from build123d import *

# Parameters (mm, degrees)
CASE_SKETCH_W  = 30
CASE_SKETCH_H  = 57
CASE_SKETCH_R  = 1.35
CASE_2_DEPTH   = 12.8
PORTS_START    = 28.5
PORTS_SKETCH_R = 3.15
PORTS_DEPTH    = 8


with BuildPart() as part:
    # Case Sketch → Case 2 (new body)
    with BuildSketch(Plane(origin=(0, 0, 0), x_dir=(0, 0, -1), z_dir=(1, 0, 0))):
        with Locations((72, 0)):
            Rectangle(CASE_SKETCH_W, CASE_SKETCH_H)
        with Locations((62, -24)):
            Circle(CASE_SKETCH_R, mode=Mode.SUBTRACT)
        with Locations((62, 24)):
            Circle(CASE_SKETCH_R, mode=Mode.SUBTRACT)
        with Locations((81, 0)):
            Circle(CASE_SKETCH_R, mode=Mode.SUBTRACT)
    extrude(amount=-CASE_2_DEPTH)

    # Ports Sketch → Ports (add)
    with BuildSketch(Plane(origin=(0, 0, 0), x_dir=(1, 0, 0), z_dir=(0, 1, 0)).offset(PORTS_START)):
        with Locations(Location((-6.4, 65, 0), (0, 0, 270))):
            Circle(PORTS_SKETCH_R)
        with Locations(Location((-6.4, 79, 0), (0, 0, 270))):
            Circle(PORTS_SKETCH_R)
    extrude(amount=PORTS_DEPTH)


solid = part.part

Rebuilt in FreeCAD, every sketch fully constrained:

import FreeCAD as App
import Part
import Sketcher

V = App.Vector
Q = App.Units.Quantity


def add_polygon(sketch, points):
    """Adds a closed chain of lines whose ends are joined by coincident constraints."""
    first, n = sketch.GeometryCount, len(points)
    for a, b in zip(points, points[1:] + points[:1]):
        sketch.addGeometry(Part.LineSegment(App.Vector(*a, 0), App.Vector(*b, 0)), False)
    for i in range(n):
        sketch.addConstraint(Sketcher.Constraint("Coincident", first + i, 2, first + (i + 1) % n, 1))

doc = App.newDocument("Part")
body = doc.addObject("PartDesign::Body", "Body")

# Sketch on YZ plane
sketch1 = body.newObject("Sketcher::SketchObject", "Sketch")
sketch1.AttachmentSupport = (doc.getObject("YZ_Plane"), [""])
sketch1.MapMode = "FlatFace"
add_polygon(sketch1, [(28.5, -57), (-28.5, -57), (-28.5, -87), (28.5, -87)])  # lines 0-3
sketch1.addGeometry(Part.Circle(V(-24, -62, 0), V(0, 0, 1), 1.4), False)  # 4
sketch1.addGeometry(Part.Circle(V(24, -62, 0), V(0, 0, 1), 1.4), False)  # 5
sketch1.addGeometry(Part.Circle(V(0, -81, 0), V(0, 0, 1), 1.4), False)  # 6
sketch1.addConstraint([
    Sketcher.Constraint("Horizontal", 0),
    Sketcher.Constraint("Vertical", 1),
    Sketcher.Constraint("Horizontal", 2),
    Sketcher.Constraint("Vertical", 3),
    Sketcher.Constraint("Equal", 4, 5),
    Sketcher.Constraint("Equal", 5, 6),
    Sketcher.Constraint("Symmetric", 4, 3, 5, 3, -2),
    Sketcher.Constraint("PointOnObject", 6, 3, -2),
    Sketcher.Constraint("Diameter", 4, Q("2.7 mm")),
    Sketcher.Constraint("DistanceX", 0, 2, 0, 1, Q("57 mm")),
    Sketcher.Constraint("DistanceY", 1, 2, 1, 1, Q("30 mm")),
    Sketcher.Constraint("DistanceX", 4, 3, -1, 1, Q("24 mm")),
    Sketcher.Constraint("DistanceY", 4, 3, -1, 1, Q("62 mm")),
    Sketcher.Constraint("DistanceY", 6, 3, -1, 1, Q("81 mm")),
    Sketcher.Constraint("DistanceY", 0, 2, -1, 1, Q("57 mm")),
    Sketcher.Constraint("DistanceX", 0, 2, -1, 1, Q("28.5 mm")),
])
pad1 = body.newObject("PartDesign::Pad", "Pad")
pad1.Profile = sketch1
pad1.Length = 12.8
pad1.Reversed = True

# Sketch on XZ plane
sketch2 = body.newObject("Sketcher::SketchObject", "Sketch001")
sketch2.AttachmentSupport = (doc.getObject("XZ_Plane"), [""])
sketch2.MapMode = "FlatFace"
sketch2.AttachmentOffset = App.Placement(V(0, 0, -28.5), App.Rotation())
sketch2.addGeometry([
    Part.Circle(V(-6.4, -65, 0), V(0, 0, 1), 3.1),
    Part.Circle(V(-6.4, -79, 0), V(0, 0, 1), 3.1),
], False)
sketch2.addConstraint([
    Sketcher.Constraint("Equal", 0, 1),
    Sketcher.Constraint("Vertical", 0, 3, 1, 3),
    Sketcher.Constraint("Diameter", 0, Q("6.3 mm")),
    Sketcher.Constraint("DistanceY", 0, 3, -1, 1, Q("65 mm")),
    Sketcher.Constraint("DistanceY", 1, 3, -1, 1, Q("79 mm")),
    Sketcher.Constraint("DistanceX", 0, 3, -1, 1, Q("6.4 mm")),
])
pad2 = body.newObject("PartDesign::Pad", "Pad001")
pad2.Profile = sketch2
pad2.Length = 8
pad2.Reversed = True

doc.recompute()
